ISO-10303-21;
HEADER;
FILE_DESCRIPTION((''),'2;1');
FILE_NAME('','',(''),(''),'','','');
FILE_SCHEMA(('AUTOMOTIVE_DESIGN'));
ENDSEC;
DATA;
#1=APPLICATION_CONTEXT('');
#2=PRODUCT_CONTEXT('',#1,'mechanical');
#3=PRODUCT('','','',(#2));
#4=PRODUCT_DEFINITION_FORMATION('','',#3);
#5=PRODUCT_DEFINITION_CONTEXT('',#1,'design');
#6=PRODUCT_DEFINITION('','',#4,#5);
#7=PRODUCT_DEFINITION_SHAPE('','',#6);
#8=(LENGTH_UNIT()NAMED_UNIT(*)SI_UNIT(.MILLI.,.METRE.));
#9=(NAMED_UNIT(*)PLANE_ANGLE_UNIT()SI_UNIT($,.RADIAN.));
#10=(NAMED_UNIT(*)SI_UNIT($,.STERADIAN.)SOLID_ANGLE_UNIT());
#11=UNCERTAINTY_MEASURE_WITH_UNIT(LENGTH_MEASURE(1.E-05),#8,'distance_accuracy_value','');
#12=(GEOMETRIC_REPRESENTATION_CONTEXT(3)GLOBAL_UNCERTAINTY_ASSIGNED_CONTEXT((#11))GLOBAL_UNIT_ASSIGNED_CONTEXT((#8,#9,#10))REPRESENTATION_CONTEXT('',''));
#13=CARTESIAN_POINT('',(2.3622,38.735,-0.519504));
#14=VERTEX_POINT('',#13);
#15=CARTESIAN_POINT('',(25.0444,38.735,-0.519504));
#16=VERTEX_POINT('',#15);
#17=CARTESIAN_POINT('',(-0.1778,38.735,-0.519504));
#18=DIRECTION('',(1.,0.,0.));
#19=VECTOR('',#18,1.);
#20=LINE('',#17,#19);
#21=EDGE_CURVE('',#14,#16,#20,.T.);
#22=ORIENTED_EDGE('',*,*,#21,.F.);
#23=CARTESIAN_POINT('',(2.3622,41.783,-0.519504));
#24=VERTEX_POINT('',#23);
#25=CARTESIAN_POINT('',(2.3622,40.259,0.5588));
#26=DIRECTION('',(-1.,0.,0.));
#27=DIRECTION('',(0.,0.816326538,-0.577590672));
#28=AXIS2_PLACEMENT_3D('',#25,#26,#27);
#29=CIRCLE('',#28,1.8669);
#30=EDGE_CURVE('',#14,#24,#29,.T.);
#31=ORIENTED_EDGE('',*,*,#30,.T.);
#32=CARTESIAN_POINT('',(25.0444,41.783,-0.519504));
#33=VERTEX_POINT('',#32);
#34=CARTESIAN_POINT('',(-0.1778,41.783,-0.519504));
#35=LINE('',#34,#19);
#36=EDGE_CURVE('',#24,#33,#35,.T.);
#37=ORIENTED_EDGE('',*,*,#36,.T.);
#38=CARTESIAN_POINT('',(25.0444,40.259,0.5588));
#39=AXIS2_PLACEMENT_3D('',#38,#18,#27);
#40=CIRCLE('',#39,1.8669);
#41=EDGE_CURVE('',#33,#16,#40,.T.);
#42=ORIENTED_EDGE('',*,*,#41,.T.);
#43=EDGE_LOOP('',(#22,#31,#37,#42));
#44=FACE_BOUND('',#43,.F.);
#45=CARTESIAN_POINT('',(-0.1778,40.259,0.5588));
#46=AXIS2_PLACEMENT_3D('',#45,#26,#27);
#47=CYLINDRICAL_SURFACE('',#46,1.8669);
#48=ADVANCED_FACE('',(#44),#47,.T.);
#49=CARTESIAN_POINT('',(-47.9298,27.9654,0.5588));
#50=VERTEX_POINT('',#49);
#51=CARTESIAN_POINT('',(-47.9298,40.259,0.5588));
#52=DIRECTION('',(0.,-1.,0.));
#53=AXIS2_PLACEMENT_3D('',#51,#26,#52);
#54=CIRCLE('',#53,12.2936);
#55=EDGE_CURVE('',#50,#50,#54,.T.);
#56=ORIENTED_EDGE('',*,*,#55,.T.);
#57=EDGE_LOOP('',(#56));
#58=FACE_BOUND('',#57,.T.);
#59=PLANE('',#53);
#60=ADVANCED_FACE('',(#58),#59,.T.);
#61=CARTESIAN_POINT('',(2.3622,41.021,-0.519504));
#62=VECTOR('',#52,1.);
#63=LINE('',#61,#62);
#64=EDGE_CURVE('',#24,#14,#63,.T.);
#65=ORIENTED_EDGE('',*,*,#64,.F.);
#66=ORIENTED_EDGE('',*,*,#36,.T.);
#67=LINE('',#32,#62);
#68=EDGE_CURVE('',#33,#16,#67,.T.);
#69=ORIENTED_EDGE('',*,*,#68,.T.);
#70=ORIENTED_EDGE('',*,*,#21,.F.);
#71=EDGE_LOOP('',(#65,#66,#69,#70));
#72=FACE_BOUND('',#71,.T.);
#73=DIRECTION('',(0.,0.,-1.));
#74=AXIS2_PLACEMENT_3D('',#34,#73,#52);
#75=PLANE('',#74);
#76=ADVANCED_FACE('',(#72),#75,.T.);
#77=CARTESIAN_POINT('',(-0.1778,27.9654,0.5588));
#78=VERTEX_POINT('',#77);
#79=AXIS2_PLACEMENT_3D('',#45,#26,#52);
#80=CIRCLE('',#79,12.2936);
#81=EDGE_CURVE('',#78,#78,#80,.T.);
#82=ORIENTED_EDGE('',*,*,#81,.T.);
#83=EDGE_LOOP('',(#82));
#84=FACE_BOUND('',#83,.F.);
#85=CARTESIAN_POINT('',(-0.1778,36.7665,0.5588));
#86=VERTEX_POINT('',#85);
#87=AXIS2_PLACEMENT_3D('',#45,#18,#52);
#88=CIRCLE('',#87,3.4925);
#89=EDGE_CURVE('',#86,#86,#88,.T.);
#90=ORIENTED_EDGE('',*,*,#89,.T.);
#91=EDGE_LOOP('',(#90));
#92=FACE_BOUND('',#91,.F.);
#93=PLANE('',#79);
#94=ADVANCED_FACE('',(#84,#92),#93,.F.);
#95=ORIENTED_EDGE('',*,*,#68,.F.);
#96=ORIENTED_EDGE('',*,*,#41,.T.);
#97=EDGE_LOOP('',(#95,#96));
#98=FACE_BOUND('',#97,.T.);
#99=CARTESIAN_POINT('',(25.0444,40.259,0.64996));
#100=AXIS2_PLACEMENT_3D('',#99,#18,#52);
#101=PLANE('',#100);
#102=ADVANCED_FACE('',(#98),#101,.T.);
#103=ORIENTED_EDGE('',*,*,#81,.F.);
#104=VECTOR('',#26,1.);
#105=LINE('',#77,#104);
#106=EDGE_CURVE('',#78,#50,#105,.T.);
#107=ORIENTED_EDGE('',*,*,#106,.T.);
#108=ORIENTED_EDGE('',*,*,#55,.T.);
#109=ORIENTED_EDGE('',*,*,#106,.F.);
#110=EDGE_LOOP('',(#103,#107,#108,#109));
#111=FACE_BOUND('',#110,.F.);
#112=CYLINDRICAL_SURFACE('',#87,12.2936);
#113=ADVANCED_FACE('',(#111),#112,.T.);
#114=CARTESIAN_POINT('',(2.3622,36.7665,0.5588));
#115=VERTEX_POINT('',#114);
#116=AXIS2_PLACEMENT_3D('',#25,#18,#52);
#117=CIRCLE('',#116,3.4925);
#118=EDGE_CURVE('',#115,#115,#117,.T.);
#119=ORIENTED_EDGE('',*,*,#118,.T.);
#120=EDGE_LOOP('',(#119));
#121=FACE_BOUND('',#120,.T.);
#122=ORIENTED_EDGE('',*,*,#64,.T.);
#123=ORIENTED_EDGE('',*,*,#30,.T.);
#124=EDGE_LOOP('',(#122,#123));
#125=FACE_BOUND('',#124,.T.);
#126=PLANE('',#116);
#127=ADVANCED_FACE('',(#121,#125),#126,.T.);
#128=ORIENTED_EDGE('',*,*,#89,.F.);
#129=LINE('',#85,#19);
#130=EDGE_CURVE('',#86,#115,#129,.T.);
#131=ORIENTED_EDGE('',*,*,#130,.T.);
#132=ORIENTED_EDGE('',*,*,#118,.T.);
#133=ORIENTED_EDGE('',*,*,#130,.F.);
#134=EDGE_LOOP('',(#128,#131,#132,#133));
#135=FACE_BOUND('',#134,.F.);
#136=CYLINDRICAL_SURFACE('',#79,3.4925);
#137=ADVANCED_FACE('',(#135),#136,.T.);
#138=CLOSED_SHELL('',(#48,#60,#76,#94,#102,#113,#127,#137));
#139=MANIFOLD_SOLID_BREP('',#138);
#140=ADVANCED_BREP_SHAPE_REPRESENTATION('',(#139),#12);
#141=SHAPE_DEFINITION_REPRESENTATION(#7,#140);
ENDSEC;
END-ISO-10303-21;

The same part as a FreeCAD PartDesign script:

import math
import FreeCAD as App
import Part
import Sketcher
from FreeCAD import Vector
Q = App.Units.Quantity

doc = App.newDocument("Part")
body = doc.addObject("PartDesign::Body", "Body")

sketch1 = doc.addObject("Sketcher::SketchObject", "Sketch")
body.addObject(sketch1)
sketch1.AttachmentSupport = (doc.YZ_Plane, [""])
sketch1.MapMode = "FlatFace"
sketch1.addGeometry(Part.Circle(Vector(0, 0, 0), Vector(0, 0, 1), 12), False)
sketch1.addConstraint(Sketcher.Constraint("Coincident", 0, 3, -1, 1))
sketch1.addConstraint(Sketcher.Constraint("Diameter", 0, Q("0.968 in")))
pad1 = doc.addObject("PartDesign::Pad", "Pad")
body.addObject(pad1)
pad1.Profile = sketch1
pad1.Length = Q("1.88 in")

sketch2 = doc.addObject("Sketcher::SketchObject", "Sketch001")
body.addObject(sketch2)
sketch2.AttachmentSupport = (doc.YZ_Plane, [""])
sketch2.MapMode = "FlatFace"
sketch2.addGeometry(Part.ArcOfCircle(Part.Circle(Vector(0, 0, 0), Vector(0, 0, 1), 1.9), math.radians(-35), math.radians(215)), False)
sketch2.addGeometry(Part.LineSegment(Vector(1.5, -1.1, 0), Vector(-1.5, -1.1, 0)), False)
sketch2.addConstraint(Sketcher.Constraint("Coincident", 0, 1, 1, 1))
sketch2.addConstraint(Sketcher.Constraint("Coincident", 1, 2, 0, 2))
sketch2.addConstraint(Sketcher.Constraint("Horizontal", 1))
sketch2.addConstraint(Sketcher.Constraint("Coincident", 0, 3, -1, 1))
sketch2.addConstraint(Sketcher.Constraint("DistanceX", 1, 2, 1, 1, Q("0.12 in")))
sketch2.addConstraint(Sketcher.Constraint("Radius", 0, Q("0.0735 in")))
pad2 = doc.addObject("PartDesign::Pad", "Pad001")
body.addObject(pad2)
pad2.Profile = sketch2
pad2.Length = Q("0.993 in")
pad2.Reversed = True

sketch3 = doc.addObject("Sketcher::SketchObject", "Sketch002")
body.addObject(sketch3)
sketch3.AttachmentSupport = (doc.YZ_Plane, [""])
sketch3.MapMode = "FlatFace"
sketch3.addGeometry(Part.Circle(Vector(0, 0, 0), Vector(0, 0, 1), 3.5), False)
sketch3.addConstraint(Sketcher.Constraint("Coincident", 0, 3, -1, 1))
sketch3.addConstraint(Sketcher.Constraint("Diameter", 0, Q("0.275 in")))
pad3 = doc.addObject("PartDesign::Pad", "Pad002")
body.addObject(pad3)
pad3.Profile = sketch3
pad3.Length = Q("0.1 in")
pad3.Reversed = True
body2 = doc.addObject("PartDesign::Body", "Body001")
doc.recompute()

body.Placement = App.Placement(Vector(-0.1778, 40.259, 0.5588), App.Rotation(Vector(0, 0, 1), 180))
boolean = doc.addObject("PartDesign::Boolean", "Boolean")
body2.addObject(boolean)
boolean.Type = "Fuse"
boolean.addObjects([body])

doc.recompute()
